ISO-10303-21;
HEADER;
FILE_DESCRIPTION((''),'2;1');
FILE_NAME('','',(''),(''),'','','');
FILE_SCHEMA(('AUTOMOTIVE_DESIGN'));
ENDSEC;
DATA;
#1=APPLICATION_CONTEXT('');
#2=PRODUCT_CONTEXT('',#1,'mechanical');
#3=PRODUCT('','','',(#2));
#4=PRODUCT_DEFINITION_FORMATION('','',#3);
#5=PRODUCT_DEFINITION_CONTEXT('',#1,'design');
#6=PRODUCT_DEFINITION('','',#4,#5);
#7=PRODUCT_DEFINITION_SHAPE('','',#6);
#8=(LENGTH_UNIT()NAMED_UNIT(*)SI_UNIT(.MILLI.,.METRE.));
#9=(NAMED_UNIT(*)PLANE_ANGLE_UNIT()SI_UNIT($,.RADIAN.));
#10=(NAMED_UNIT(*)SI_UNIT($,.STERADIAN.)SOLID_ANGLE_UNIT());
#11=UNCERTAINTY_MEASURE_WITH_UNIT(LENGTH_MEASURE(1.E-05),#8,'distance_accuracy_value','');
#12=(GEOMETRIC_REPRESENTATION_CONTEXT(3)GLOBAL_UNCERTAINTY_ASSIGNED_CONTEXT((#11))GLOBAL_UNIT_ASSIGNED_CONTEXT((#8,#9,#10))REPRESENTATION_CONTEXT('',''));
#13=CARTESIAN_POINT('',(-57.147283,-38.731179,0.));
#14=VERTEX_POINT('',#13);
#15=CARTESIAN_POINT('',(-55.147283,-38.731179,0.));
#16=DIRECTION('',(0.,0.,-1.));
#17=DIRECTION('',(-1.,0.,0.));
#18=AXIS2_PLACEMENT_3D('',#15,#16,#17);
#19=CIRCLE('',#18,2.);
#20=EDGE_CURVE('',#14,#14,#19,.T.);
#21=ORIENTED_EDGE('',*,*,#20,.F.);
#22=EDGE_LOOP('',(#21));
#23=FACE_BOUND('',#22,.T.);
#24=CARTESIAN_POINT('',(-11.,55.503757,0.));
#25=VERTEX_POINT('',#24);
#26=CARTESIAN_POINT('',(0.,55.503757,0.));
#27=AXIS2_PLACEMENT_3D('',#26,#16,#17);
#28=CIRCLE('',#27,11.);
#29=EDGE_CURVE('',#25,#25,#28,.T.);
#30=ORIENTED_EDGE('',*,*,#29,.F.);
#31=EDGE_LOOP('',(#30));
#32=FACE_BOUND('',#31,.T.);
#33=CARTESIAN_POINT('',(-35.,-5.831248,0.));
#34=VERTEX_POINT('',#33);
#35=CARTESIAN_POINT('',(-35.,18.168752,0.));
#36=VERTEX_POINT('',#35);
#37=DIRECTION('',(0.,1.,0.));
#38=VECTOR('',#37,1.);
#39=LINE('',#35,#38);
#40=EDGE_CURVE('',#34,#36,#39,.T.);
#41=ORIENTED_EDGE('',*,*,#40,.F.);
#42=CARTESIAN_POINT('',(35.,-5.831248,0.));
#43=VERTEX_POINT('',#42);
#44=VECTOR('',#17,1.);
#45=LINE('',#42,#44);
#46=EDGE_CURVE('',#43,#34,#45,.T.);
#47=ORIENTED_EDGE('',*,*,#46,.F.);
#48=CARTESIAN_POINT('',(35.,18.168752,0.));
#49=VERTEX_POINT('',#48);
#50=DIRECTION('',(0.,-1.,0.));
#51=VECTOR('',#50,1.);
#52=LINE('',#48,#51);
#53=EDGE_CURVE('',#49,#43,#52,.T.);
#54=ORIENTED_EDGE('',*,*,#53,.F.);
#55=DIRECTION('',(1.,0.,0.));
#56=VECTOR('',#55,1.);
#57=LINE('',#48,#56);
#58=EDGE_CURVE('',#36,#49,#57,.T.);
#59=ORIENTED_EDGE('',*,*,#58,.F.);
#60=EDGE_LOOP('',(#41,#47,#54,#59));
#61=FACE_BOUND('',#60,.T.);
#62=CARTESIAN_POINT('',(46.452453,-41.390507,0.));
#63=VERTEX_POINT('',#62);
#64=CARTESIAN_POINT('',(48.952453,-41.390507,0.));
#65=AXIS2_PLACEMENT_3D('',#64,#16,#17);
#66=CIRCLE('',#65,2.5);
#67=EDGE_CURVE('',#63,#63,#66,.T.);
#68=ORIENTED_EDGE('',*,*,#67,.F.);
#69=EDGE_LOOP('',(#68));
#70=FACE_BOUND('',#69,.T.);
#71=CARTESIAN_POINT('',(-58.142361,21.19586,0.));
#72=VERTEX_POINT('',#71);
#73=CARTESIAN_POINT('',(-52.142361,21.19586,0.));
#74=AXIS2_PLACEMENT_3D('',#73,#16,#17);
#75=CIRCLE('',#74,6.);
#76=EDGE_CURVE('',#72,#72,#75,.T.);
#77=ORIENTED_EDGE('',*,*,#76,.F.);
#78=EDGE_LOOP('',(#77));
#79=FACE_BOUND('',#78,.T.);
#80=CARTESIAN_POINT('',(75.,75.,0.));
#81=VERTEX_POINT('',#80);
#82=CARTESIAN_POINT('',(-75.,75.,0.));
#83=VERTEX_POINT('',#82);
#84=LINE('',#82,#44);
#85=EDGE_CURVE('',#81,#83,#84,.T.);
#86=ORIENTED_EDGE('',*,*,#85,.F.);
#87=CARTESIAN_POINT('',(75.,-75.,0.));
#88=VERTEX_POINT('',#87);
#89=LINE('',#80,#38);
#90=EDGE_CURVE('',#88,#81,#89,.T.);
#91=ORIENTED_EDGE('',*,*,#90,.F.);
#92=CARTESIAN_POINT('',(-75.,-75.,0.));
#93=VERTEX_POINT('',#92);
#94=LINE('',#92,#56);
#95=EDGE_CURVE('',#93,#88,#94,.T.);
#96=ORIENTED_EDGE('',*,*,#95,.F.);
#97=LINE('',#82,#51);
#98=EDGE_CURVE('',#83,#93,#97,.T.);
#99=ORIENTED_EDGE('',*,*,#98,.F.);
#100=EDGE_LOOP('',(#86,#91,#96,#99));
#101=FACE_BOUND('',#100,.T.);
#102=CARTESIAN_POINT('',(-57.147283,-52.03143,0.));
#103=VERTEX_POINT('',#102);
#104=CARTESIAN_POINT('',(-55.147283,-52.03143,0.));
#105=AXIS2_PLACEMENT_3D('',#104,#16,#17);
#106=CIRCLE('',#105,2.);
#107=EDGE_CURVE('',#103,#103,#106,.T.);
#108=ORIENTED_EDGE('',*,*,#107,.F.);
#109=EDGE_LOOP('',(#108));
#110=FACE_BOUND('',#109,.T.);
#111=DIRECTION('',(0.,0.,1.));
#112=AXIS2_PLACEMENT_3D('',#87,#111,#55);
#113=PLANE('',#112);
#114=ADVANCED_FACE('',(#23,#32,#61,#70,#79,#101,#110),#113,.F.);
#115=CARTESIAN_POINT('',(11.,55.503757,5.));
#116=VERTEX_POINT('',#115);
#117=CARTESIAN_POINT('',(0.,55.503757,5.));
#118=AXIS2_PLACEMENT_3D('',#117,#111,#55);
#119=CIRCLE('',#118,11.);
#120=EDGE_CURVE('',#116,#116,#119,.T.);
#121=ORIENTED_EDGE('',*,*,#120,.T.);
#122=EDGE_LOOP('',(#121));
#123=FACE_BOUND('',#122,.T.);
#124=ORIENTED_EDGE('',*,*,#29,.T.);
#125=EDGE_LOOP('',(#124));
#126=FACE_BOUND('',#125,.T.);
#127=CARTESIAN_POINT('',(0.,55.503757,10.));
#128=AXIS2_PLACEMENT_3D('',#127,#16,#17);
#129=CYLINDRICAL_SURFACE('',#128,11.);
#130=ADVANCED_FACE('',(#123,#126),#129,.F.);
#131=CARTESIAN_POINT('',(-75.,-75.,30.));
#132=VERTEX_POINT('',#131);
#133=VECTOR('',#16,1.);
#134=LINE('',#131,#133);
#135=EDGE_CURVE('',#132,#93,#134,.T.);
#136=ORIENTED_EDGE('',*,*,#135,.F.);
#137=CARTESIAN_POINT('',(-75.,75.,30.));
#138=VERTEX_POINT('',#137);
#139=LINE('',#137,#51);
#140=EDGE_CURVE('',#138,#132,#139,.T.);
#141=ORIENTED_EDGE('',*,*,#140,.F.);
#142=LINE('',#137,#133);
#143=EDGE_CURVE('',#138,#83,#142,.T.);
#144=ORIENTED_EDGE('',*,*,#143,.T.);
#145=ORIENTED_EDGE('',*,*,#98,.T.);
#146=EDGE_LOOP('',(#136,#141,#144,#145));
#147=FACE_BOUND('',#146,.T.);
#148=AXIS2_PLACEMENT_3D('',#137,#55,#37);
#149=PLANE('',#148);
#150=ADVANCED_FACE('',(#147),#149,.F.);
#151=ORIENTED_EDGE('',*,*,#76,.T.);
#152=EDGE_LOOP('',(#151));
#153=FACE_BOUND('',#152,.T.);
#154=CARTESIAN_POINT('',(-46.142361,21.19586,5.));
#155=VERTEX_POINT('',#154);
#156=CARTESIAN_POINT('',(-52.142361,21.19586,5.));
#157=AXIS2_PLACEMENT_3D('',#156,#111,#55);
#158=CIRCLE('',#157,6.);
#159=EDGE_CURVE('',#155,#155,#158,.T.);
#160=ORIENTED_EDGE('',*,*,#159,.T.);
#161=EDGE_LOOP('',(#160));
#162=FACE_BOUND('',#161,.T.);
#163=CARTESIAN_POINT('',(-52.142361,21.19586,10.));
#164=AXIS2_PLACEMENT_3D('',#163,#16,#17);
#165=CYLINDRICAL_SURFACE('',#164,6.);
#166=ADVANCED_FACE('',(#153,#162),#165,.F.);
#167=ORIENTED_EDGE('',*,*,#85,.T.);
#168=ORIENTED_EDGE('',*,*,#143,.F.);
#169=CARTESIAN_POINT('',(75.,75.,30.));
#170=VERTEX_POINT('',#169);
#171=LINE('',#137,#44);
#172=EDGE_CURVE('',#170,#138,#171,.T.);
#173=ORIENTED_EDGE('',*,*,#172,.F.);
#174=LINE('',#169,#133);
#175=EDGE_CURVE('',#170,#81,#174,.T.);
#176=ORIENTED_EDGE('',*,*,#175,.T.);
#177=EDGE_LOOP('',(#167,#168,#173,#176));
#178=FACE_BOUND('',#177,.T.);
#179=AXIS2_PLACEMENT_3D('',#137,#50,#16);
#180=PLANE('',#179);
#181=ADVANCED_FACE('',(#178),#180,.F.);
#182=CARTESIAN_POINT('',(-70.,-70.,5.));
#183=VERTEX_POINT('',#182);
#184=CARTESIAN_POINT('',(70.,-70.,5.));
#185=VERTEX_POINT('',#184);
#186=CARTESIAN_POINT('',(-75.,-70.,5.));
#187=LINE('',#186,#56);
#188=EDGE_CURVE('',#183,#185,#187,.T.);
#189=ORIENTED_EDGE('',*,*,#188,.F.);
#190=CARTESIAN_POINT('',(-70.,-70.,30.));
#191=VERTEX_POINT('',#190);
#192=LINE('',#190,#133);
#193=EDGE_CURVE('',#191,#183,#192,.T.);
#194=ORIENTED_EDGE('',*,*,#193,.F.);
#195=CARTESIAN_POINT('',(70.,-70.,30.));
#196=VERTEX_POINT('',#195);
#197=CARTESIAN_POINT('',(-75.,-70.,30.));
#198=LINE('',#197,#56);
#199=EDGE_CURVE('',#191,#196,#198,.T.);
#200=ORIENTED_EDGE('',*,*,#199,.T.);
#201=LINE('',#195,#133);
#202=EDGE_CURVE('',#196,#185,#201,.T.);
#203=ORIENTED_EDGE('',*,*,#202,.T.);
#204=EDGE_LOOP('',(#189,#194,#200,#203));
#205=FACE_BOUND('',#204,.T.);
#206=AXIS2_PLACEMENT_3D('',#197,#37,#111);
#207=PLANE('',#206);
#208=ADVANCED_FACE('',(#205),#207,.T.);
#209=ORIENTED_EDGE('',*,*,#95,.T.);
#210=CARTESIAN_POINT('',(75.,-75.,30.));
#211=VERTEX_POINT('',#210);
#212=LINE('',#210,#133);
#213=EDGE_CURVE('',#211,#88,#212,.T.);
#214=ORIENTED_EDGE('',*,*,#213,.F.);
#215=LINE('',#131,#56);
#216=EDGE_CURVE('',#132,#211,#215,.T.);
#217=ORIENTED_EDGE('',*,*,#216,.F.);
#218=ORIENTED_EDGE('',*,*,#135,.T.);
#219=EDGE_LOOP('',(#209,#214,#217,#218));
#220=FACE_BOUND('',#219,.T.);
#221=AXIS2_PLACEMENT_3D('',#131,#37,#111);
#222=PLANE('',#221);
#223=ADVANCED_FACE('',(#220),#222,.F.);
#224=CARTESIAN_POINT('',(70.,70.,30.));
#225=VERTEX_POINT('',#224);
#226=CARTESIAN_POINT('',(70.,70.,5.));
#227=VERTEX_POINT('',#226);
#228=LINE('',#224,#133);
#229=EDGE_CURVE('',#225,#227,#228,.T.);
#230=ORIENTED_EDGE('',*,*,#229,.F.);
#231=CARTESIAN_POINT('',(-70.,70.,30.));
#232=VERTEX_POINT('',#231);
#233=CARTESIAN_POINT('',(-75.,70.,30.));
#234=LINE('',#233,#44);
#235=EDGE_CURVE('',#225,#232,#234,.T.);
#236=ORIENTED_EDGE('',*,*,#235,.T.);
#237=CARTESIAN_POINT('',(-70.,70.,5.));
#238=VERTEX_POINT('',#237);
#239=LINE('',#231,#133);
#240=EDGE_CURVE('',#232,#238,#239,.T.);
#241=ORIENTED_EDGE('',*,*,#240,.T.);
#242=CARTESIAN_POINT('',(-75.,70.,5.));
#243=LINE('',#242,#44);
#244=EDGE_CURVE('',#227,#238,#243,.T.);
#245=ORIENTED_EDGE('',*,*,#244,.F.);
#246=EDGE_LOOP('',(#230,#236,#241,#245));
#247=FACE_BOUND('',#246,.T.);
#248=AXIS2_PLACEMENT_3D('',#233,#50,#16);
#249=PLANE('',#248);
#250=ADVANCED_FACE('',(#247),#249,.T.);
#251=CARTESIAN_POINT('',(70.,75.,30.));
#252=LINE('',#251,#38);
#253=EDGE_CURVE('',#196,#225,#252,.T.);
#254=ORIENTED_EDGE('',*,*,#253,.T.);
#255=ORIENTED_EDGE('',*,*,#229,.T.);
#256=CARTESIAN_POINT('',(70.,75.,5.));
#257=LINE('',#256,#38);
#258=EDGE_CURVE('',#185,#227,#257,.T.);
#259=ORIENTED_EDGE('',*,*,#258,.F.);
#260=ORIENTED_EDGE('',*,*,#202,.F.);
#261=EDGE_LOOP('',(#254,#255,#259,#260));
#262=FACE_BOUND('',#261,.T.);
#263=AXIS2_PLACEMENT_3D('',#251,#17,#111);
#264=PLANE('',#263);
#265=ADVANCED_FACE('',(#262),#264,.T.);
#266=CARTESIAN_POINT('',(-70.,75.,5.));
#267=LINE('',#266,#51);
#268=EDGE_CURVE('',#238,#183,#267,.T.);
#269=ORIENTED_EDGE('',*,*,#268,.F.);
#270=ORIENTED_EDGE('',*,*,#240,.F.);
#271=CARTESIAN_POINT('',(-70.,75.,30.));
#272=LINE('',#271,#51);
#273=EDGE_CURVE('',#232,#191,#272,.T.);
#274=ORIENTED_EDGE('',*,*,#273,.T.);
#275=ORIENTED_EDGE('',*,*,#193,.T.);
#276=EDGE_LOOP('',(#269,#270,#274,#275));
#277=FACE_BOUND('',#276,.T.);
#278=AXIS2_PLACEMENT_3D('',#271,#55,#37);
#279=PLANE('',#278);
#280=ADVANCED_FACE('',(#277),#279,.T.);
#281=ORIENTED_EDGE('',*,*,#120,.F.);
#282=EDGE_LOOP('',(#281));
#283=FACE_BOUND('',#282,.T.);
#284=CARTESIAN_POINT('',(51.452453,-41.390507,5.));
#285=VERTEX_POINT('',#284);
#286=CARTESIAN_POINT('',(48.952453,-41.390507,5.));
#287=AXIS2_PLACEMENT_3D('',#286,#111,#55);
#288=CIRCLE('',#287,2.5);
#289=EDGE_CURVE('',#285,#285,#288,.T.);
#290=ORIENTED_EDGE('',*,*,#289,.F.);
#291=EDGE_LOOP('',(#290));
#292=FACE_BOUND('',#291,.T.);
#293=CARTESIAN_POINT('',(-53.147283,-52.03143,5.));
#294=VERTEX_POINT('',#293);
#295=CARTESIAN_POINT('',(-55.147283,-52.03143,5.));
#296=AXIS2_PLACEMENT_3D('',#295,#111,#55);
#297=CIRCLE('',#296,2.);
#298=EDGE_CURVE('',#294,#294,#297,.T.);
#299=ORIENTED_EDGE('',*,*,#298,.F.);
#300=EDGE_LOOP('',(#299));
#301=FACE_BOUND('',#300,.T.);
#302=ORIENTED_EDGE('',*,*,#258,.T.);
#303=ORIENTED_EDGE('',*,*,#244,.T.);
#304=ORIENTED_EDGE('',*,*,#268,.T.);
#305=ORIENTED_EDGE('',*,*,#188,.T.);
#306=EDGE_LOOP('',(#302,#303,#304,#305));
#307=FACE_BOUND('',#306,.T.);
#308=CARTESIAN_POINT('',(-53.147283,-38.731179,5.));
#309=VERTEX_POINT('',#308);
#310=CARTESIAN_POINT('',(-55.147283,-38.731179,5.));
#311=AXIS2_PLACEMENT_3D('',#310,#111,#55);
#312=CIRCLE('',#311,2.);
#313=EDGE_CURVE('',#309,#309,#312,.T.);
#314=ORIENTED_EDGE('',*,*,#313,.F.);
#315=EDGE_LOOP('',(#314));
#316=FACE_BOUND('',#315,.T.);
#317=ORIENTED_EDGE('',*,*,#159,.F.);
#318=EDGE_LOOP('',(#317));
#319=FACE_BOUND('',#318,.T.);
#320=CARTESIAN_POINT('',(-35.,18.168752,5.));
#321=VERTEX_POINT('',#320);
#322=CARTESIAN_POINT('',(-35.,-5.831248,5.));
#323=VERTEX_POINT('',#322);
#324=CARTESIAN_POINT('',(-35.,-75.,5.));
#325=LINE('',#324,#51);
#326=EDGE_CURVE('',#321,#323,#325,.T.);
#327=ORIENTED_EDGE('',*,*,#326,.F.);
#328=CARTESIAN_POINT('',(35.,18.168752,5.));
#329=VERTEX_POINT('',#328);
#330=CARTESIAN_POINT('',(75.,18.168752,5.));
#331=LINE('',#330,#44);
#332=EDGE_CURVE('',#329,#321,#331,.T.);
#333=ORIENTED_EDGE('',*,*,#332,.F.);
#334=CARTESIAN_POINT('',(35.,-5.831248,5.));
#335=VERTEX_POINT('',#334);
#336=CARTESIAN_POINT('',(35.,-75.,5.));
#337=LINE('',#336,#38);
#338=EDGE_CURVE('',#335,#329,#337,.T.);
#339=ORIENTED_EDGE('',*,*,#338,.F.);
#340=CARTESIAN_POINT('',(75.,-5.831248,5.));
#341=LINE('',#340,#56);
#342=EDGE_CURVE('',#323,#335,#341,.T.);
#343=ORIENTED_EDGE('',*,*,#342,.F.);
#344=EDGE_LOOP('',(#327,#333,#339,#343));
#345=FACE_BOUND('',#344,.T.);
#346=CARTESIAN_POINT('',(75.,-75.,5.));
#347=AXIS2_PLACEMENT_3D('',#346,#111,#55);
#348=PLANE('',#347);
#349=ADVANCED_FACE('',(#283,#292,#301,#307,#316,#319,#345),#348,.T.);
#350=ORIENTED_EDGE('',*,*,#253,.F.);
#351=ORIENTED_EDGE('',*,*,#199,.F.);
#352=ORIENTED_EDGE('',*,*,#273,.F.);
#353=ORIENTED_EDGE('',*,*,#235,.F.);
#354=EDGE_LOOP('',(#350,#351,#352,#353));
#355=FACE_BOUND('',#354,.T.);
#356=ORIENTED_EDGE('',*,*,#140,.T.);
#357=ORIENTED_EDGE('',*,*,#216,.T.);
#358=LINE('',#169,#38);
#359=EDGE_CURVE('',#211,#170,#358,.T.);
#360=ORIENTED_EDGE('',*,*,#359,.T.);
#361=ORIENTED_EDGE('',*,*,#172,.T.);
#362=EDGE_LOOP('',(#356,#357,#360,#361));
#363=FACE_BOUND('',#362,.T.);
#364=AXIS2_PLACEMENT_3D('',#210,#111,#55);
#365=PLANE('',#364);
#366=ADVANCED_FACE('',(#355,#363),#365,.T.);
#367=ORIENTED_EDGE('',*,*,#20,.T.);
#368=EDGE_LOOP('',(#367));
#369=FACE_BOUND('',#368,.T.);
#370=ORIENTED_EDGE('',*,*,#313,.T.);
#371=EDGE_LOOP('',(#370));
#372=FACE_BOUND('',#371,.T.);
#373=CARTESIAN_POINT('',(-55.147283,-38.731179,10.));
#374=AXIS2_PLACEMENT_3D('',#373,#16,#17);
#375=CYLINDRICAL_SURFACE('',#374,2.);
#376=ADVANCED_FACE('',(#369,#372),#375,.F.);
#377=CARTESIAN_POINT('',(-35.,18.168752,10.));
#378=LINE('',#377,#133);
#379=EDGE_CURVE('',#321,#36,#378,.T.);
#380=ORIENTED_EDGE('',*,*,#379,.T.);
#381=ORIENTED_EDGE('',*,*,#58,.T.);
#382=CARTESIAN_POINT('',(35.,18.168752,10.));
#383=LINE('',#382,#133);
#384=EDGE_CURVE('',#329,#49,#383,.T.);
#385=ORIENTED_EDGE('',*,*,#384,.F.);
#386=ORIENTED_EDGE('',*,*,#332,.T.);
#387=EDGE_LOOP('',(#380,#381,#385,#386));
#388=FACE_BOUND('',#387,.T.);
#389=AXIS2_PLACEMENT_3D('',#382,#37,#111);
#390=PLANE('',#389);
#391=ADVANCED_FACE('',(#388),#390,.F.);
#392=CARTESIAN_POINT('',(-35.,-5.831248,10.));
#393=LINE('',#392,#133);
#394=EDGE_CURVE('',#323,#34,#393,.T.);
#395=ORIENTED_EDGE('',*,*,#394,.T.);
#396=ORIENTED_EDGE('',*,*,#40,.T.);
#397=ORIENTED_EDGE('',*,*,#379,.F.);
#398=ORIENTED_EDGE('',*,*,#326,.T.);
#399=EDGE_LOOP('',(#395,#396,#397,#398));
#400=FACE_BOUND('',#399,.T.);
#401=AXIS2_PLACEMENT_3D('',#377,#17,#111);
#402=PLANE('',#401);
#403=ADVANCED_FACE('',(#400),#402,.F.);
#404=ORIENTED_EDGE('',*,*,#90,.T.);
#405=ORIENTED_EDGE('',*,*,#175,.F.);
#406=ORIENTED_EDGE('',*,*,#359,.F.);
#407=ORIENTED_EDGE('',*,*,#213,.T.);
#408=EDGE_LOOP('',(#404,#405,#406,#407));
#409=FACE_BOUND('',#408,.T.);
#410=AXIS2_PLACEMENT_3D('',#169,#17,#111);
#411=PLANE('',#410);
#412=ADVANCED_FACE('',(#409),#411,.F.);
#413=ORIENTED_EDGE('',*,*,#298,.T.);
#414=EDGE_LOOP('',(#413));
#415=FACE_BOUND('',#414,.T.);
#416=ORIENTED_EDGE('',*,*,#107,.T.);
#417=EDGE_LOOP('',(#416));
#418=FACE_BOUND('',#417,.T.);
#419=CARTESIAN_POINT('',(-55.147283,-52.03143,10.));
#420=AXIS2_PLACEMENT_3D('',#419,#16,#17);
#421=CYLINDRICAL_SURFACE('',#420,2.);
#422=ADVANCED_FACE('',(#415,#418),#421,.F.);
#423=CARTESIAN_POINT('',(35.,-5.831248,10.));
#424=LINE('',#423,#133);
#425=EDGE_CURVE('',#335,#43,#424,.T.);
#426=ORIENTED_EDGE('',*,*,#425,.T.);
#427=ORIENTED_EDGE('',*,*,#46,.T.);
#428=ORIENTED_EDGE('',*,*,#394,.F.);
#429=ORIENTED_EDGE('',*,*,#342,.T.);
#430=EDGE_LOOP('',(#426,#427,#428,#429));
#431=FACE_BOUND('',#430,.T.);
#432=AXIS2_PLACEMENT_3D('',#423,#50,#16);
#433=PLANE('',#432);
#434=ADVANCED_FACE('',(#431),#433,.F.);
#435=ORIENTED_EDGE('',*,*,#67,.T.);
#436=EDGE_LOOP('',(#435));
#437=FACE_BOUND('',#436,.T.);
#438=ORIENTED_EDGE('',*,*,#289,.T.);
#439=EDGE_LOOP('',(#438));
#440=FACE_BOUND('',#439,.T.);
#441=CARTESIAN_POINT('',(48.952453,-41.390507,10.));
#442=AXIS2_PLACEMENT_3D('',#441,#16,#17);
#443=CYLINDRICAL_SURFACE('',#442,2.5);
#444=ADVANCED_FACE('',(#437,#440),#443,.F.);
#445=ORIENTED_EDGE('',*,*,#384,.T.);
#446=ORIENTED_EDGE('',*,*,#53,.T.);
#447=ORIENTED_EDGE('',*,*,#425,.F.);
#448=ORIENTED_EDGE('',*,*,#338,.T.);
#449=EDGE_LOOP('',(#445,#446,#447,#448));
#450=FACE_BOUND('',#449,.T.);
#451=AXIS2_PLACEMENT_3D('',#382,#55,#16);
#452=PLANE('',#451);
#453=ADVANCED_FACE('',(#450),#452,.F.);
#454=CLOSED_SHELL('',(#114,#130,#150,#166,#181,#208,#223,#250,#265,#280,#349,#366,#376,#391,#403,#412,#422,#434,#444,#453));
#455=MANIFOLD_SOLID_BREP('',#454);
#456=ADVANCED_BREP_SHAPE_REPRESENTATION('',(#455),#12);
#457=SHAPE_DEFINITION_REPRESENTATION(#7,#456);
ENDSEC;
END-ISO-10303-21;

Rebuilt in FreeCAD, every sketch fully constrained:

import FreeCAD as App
import Part
import Sketcher
Q = App.Units.Quantity


def faces_at(feature, points):
    """Names of the faces that lie closest to the given points."""
    faces = feature.Shape.Faces
    near = lambda p: min(range(len(faces)), key=lambda i: faces[i].distToShape(Part.Vertex(*p))[0])
    return sorted({f"Face{near(p) + 1}" for p in points})

doc = App.newDocument("Part")
body = doc.addObject("PartDesign::Body", "Body")

sketch1 = body.newObject("Sketcher::SketchObject", "Sketch")
sketch1.AttachmentSupport = (doc.getObject("XY_Plane"), [""])
sketch1.MapMode = "FlatFace"
sketch1.addGeometry([
    Part.LineSegment(App.Vector(-75, 75, 0), App.Vector(-75, -75, 0)),
    Part.LineSegment(App.Vector(-75, -75, 0), App.Vector(75, -75, 0)),
    Part.LineSegment(App.Vector(75, -75, 0), App.Vector(75, 75, 0)),
    Part.LineSegment(App.Vector(75, 75, 0), App.Vector(-75, 75, 0)),
], False)
sketch1.addConstraint([
    Sketcher.Constraint("Coincident", 0, 2, 1, 1),
    Sketcher.Constraint("Coincident", 1, 2, 2, 1),
    Sketcher.Constraint("Coincident", 2, 2, 3, 1),
    Sketcher.Constraint("Coincident", 3, 2, 0, 1),
    Sketcher.Constraint("Vertical", 0),
    Sketcher.Constraint("Horizontal", 1),
    Sketcher.Constraint("Vertical", 2),
    Sketcher.Constraint("Horizontal", 3),
    Sketcher.Constraint("Symmetric", 0, 2, 2, 2, -1, 1),
    Sketcher.Constraint("Equal", 3, 0),
    Sketcher.Constraint("DistanceX", 1, 1, 1, 2, Q("150 mm")),
])
pad1 = body.newObject("PartDesign::Pad", "Pad")
pad1.Profile = sketch1
pad1.Length = 30
doc.recompute()

thickness = body.newObject("PartDesign::Thickness", "Thickness")
thickness.Base = (pad1, faces_at(pad1, [(0, 0, 30)]))
thickness.Value = 5
thickness.Reversed = True
thickness.Join = "Intersection"

sketch2 = body.newObject("Sketcher::SketchObject", "Sketch001")
sketch2.AttachmentSupport = (doc.getObject("XY_Plane"), [""])
sketch2.MapMode = "FlatFace"
sketch2.addGeometry(Part.Circle(App.Vector(0, 56, 0), App.Vector(0, 0, 1), 11), False)
sketch2.addConstraint([
    Sketcher.Constraint("PointOnObject", 0, 3, -2),
    Sketcher.Constraint("Diameter", 0, Q("22 mm")),
    Sketcher.Constraint("DistanceY", -1, 1, 0, 3, Q("55.503757 mm")),
])
pocket1 = body.newObject("PartDesign::Pocket", "Pocket")
pocket1.Profile = sketch2
pocket1.Length = 10
pocket1.Reversed = True

sketch3 = body.newObject("Sketcher::SketchObject", "Sketch002")
sketch3.AttachmentSupport = (doc.getObject("XY_Plane"), [""])
sketch3.MapMode = "FlatFace"
sketch3.addGeometry([
    Part.LineSegment(App.Vector(35, 18, 0), App.Vector(35, -6, 0)),
    Part.LineSegment(App.Vector(35, -6, 0), App.Vector(-35, -6, 0)),
    Part.LineSegment(App.Vector(-35, -6, 0), App.Vector(-35, 18, 0)),
    Part.LineSegment(App.Vector(-35, 18, 0), App.Vector(35, 18, 0)),
], False)
sketch3.addConstraint([
    Sketcher.Constraint("Coincident", 0, 2, 1, 1),
    Sketcher.Constraint("Coincident", 1, 2, 2, 1),
    Sketcher.Constraint("Coincident", 2, 2, 3, 1),
    Sketcher.Constraint("Coincident", 3, 2, 0, 1),
    Sketcher.Constraint("Vertical", 0),
    Sketcher.Constraint("Horizontal", 1),
    Sketcher.Constraint("Vertical", 2),
    Sketcher.Constraint("Horizontal", 3),
    Sketcher.Constraint("DistanceX", 1, 2, 1, 1, Q("70 mm")),
    Sketcher.Constraint("DistanceY", 0, 2, 0, 1, Q("24 mm")),
    Sketcher.Constraint("DistanceX", -1, 1, 0, 2, Q("35 mm")),
    Sketcher.Constraint("DistanceY", 0, 2, -1, 1, Q("5.831248 mm")),
])
pocket2 = body.newObject("PartDesign::Pocket", "Pocket001")
pocket2.Profile = sketch3
pocket2.Length = 10
pocket2.Reversed = True

sketch4 = body.newObject("Sketcher::SketchObject", "Sketch003")
sketch4.AttachmentSupport = (doc.getObject("XY_Plane"), [""])
sketch4.MapMode = "FlatFace"
sketch4.addGeometry(Part.Circle(App.Vector(-52, 21, 0), App.Vector(0, 0, 1), 6), False)
sketch4.addConstraint([
    Sketcher.Constraint("Diameter", 0, Q("12 mm")),
    Sketcher.Constraint("DistanceX", 0, 3, -1, 1, Q("52.142361 mm")),
    Sketcher.Constraint("DistanceY", -1, 1, 0, 3, Q("21.19586 mm")),
])
pocket3 = body.newObject("PartDesign::Pocket", "Pocket002")
pocket3.Profile = sketch4
pocket3.Length = 10
pocket3.Reversed = True

sketch5 = body.newObject("Sketcher::SketchObject", "Sketch004")
sketch5.AttachmentSupport = (doc.getObject("XY_Plane"), [""])
sketch5.MapMode = "FlatFace"
sketch5.addGeometry(Part.Circle(App.Vector(49, -41.4, 0), App.Vector(0, 0, 1), 2.5), False)
sketch5.addConstraint([
    Sketcher.Constraint("Diameter", 0, Q("5 mm")),
    Sketcher.Constraint("DistanceX", -1, 1, 0, 3, Q("48.952453 mm")),
    Sketcher.Constraint("DistanceY", 0, 3, -1, 1, Q("41.390507 mm")),
])
pocket4 = body.newObject("PartDesign::Pocket", "Pocket003")
pocket4.Profile = sketch5
pocket4.Length = 10
pocket4.Reversed = True

sketch6 = body.newObject("Sketcher::SketchObject", "Sketch005")
sketch6.AttachmentSupport = (doc.getObject("XY_Plane"), [""])
sketch6.MapMode = "FlatFace"
sketch6.addGeometry([
    Part.Circle(App.Vector(-55.1, -52, 0), App.Vector(0, 0, 1), 2),
    Part.Circle(App.Vector(-55.1, -38.7, 0), App.Vector(0, 0, 1), 2),
], False)
sketch6.addConstraint([
    Sketcher.Constraint("Equal", 0, 1),
    Sketcher.Constraint("Vertical", 0, 3, 1, 3),
    Sketcher.Constraint("Diameter", 0, Q("4 mm")),
    Sketcher.Constraint("DistanceY", 0, 3, -1, 1, Q("52.03143 mm")),
    Sketcher.Constraint("DistanceY", 1, 3, -1, 1, Q("38.731179 mm")),
    Sketcher.Constraint("DistanceX", 0, 3, -1, 1, Q("55.147283 mm")),
])
pocket5 = body.newObject("PartDesign::Pocket", "Pocket004")
pocket5.Profile = sketch6
pocket5.Length = 10
pocket5.Reversed = True

doc.recompute()
